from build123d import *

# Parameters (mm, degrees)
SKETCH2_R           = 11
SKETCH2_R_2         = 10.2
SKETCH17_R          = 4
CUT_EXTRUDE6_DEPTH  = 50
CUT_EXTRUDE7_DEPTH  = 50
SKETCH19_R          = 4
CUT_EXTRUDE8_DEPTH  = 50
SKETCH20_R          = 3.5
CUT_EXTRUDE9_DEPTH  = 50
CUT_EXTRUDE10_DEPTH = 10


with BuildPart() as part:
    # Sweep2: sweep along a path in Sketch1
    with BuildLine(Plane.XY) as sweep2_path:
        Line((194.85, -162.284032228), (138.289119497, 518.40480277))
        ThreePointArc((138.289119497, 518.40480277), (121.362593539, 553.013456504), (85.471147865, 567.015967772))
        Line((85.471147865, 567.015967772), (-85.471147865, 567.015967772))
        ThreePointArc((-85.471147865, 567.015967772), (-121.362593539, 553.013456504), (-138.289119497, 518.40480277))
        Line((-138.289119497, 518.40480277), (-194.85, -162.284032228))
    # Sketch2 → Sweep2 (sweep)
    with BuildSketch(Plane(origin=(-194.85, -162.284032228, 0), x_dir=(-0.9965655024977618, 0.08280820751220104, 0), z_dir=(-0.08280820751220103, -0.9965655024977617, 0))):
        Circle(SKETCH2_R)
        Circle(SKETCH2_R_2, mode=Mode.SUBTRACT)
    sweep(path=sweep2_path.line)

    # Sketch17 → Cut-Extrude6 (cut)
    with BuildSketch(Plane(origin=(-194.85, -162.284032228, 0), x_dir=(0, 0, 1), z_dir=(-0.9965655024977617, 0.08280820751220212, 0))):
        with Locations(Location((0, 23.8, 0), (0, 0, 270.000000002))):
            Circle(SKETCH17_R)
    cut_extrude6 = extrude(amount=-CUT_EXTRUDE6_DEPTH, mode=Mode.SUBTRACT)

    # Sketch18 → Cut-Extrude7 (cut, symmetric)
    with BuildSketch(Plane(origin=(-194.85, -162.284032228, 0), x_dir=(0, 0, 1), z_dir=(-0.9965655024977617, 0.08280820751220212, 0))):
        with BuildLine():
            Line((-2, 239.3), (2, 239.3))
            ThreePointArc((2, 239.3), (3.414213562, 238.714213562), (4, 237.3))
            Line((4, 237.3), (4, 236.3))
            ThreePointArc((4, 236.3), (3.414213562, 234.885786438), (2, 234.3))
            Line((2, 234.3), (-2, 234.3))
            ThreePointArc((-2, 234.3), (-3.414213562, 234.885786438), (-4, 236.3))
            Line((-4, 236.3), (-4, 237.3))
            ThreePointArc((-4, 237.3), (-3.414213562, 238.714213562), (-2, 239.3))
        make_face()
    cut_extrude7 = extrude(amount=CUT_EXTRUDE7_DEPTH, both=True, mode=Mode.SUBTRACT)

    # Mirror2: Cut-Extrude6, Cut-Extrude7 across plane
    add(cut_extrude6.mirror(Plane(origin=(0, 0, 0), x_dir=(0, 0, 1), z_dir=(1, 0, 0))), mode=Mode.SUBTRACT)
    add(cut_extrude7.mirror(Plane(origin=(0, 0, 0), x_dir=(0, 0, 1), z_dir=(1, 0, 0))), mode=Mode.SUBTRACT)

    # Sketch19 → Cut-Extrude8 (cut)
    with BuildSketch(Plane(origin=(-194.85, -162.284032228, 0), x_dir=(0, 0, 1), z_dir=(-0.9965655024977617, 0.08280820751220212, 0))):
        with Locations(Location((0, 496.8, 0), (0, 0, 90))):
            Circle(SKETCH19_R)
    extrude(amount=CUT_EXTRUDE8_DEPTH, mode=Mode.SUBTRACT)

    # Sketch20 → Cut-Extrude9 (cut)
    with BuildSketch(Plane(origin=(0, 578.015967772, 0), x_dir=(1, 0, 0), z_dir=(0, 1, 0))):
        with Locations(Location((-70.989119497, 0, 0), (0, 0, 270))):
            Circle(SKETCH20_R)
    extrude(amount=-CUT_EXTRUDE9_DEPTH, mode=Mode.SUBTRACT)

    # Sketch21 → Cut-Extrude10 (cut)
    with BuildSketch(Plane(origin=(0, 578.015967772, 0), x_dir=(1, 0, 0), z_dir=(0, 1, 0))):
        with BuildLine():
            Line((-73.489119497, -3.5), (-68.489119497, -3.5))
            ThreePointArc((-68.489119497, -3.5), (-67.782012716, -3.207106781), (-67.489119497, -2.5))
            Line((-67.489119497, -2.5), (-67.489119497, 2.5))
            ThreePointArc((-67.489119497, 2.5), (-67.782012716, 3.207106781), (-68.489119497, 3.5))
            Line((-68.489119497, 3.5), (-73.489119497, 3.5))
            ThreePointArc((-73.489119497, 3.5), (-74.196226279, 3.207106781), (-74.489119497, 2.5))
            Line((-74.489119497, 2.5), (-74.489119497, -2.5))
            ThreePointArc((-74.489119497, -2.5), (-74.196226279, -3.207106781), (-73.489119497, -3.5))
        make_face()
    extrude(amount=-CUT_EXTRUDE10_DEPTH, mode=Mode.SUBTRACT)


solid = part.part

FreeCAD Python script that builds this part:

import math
import FreeCAD as App
import Part
import Sketcher

V = App.Vector
Q = App.Units.Quantity

doc = App.newDocument("Part")
body = doc.addObject("PartDesign::Body", "Body")

# Sketch on an angled plane
sketch1 = body.newObject("Sketcher::SketchObject", "Sketch")
sketch1.Placement = App.Placement(V(-194.85, -162.284032, 0), App.Rotation(V(-0.996565502, 0.082808208, 0), V(0, 0, -0.999999999), V(-0.082808208, -0.996565502, 0), "ZXY"))
sketch1.addGeometry(Part.Circle(V(0, 0, 0), V(0, 0, 1), 11), False)
sketch1.addGeometry(Part.Circle(V(0, 0, 0), V(0, 0, 1), 10), False)
sketch1.addConstraint(Sketcher.Constraint("Coincident", 0, 3, -1, 1))
sketch1.addConstraint(Sketcher.Constraint("Coincident", 1, 3, -1, 1))
sketch1.addConstraint(Sketcher.Constraint("Diameter", 0, 22.0))
sketch1.addConstraint(Sketcher.Constraint("Diameter", 1, 20.4))

# Sketch on XY plane
sketch2 = body.newObject("Sketcher::SketchObject", "Sketch001")
sketch2.AttachmentSupport = (doc.getObject("XY_Plane"), [""])
sketch2.MapMode = "FlatFace"
sketch2.addGeometry(Part.LineSegment(V(195, -162, 0), V(138, 518, 0)), False)
sketch2.addGeometry(Part.ArcOfCircle(Part.Circle(V(85, 514, 0), V(0, 0, 1), 53), math.radians(5), math.radians(90)), False)
sketch2.addGeometry(Part.LineSegment(V(85, 567, 0), V(-85, 567, 0)), False)
sketch2.addGeometry(Part.ArcOfCircle(Part.Circle(V(-85, 514, 0), V(0, 0, 1), 53), math.radians(90), math.radians(175)), False)
sketch2.addGeometry(Part.LineSegment(V(-138, 518, 0), V(-195, -162, 0)), False)
sketch2.addConstraint(Sketcher.Constraint("Tangent", 0, 2, 1, 1))
sketch2.addConstraint(Sketcher.Constraint("Tangent", 1, 2, 2, 1))
sketch2.addConstraint(Sketcher.Constraint("Tangent", 2, 2, 3, 1))
sketch2.addConstraint(Sketcher.Constraint("Tangent", 3, 2, 4, 1))
sketch2.addConstraint(Sketcher.Constraint("Horizontal", 2))
sketch2.addConstraint(Sketcher.Constraint("Equal", 1, 3))
sketch2.addConstraint(Sketcher.Constraint("Symmetric", 0, 2, 3, 2, -2))
sketch2.addConstraint(Sketcher.Constraint("Horizontal", 0, 1, 4, 2))
sketch2.addConstraint(Sketcher.Constraint("Radius", 1, 53.0))
sketch2.addConstraint(Sketcher.Constraint("Angle", 0, Q("94.75 deg")))
sketch2.addConstraint(Sketcher.Constraint("DistanceY", 0, 1, 1, 3, 676.3))
sketch2.addConstraint(Sketcher.Constraint("DistanceX", 4, 2, 0, 1, 389.7))
sketch2.addConstraint(Sketcher.Constraint("DistanceY", -1, 1, 1, 3, 514.015968))
doc.recompute()

additivepipe = body.newObject("PartDesign::AdditivePipe", "AdditivePipe")
additivepipe.Profile = sketch1
additivepipe.Spine = (sketch2, ["Edge1", "Edge2", "Edge3", "Edge4", "Edge5"])

# Sketch on an angled plane
sketch3 = body.newObject("Sketcher::SketchObject", "Sketch002")
sketch3.Placement = App.Placement(V(-194.85, -162.284032, 0), App.Rotation(V(0, 0, 1), V(0.082808208, 0.996565502, 0), V(-0.996565502, 0.082808208, 0), "ZXY"))
sketch3.addGeometry(Part.Circle(V(0, 23.8, 0), V(0, 0, 1), 4), False)
sketch3.addConstraint(Sketcher.Constraint("PointOnObject", 0, 3, -2))
sketch3.addConstraint(Sketcher.Constraint("Diameter", 0, 8.0))
sketch3.addConstraint(Sketcher.Constraint("DistanceY", -1, 1, 0, 3, 23.8))
pocket1 = body.newObject("PartDesign::Pocket", "Pocket")
pocket1.Profile = sketch3
pocket1.Length = 50

# Sketch on an angled plane
sketch4 = body.newObject("Sketcher::SketchObject", "Sketch003")
sketch4.Placement = App.Placement(V(-194.85, -162.284032, 0), App.Rotation(V(0, 0, 1), V(0.082808208, 0.996565502, 0), V(-0.996565502, 0.082808208, 0), "ZXY"))
sketch4.addGeometry(Part.LineSegment(V(2, 239.3, 0), V(-2, 239.3, 0)), False)
sketch4.addGeometry(Part.ArcOfCircle(Part.Circle(V(-2, 237.3, 0), V(0, 0, 1), 2), math.radians(90), math.radians(180)), False)
sketch4.addGeometry(Part.LineSegment(V(-4, 237.3, 0), V(-4, 236.3, 0)), False)
sketch4.addGeometry(Part.ArcOfCircle(Part.Circle(V(-2, 236.3, 0), V(0, 0, 1), 2), math.radians(-180), math.radians(-90)), False)
sketch4.addGeometry(Part.LineSegment(V(-2, 234.3, 0), V(2, 234.3, 0)), False)
sketch4.addGeometry(Part.ArcOfCircle(Part.Circle(V(2, 236.3, 0), V(0, 0, 1), 2), math.radians(-90), math.radians(0)), False)
sketch4.addGeometry(Part.LineSegment(V(4, 236.3, 0), V(4, 237.3, 0)), False)
sketch4.addGeometry(Part.ArcOfCircle(Part.Circle(V(2, 237.3, 0), V(0, 0, 1), 2), math.radians(0), math.radians(90)), False)
sketch4.addConstraint(Sketcher.Constraint("Tangent", 0, 2, 1, 1))
sketch4.addConstraint(Sketcher.Constraint("Tangent", 1, 2, 2, 1))
sketch4.addConstraint(Sketcher.Constraint("Tangent", 2, 2, 3, 1))
sketch4.addConstraint(Sketcher.Constraint("Tangent", 3, 2, 4, 1))
sketch4.addConstraint(Sketcher.Constraint("Tangent", 4, 2, 5, 1))
sketch4.addConstraint(Sketcher.Constraint("Tangent", 5, 2, 6, 1))
sketch4.addConstraint(Sketcher.Constraint("Tangent", 6, 2, 7, 1))
sketch4.addConstraint(Sketcher.Constraint("Tangent", 7, 2, 0, 1))
sketch4.addConstraint(Sketcher.Constraint("Horizontal", 0))
sketch4.addConstraint(Sketcher.Constraint("Vertical", 2))
sketch4.addConstraint(Sketcher.Constraint("Horizontal", 4))
sketch4.addConstraint(Sketcher.Constraint("Vertical", 6))
sketch4.addConstraint(Sketcher.Constraint("Equal", 1, 3))
sketch4.addConstraint(Sketcher.Constraint("Equal", 3, 5))
sketch4.addConstraint(Sketcher.Constraint("Equal", 5, 7))
sketch4.addConstraint(Sketcher.Constraint("Radius", 1, 2.0))
sketch4.addConstraint(Sketcher.Constraint("DistanceX", 0, 2, 0, 1, 4.0))
sketch4.addConstraint(Sketcher.Constraint("DistanceY", 2, 2, 2, 1, 1.0))
sketch4.addConstraint(Sketcher.Constraint("DistanceX", 1, 3, -1, 1, 2.0))
sketch4.addConstraint(Sketcher.Constraint("DistanceY", -1, 1, 1, 3, 237.3))
pocket2 = body.newObject("PartDesign::Pocket", "Pocket001")
pocket2.Profile = sketch4
pocket2.Length = 100
pocket2.Midplane = True
doc.recompute()

mirrored = body.newObject("PartDesign::Mirrored", "Mirrored")
mirrored.Originals = [pocket1, pocket2]
mirrored.MirrorPlane = (doc.getObject("YZ_Plane"), [""])
body.Tip = mirrored

# Sketch on an angled plane
sketch5 = body.newObject("Sketcher::SketchObject", "Sketch004")
sketch5.Placement = App.Placement(V(-194.85, -162.284032, 0), App.Rotation(V(0, 0, 1), V(0.082808208, 0.996565502, 0), V(-0.996565502, 0.082808208, 0), "ZXY"))
sketch5.addGeometry(Part.Circle(V(0, 496.8, 0), V(0, 0, 1), 4), False)
sketch5.addConstraint(Sketcher.Constraint("PointOnObject", 0, 3, -2))
sketch5.addConstraint(Sketcher.Constraint("Diameter", 0, 8.0))
sketch5.addConstraint(Sketcher.Constraint("DistanceY", -1, 1, 0, 3, 496.8))
pocket3 = body.newObject("PartDesign::Pocket", "Pocket002")
pocket3.Profile = sketch5
pocket3.Length = 50
pocket3.Reversed = True

# Sketch on XZ plane
sketch6 = body.newObject("Sketcher::SketchObject", "Sketch005")
sketch6.AttachmentSupport = (doc.getObject("XZ_Plane"), [""])
sketch6.MapMode = "FlatFace"
sketch6.AttachmentOffset = App.Placement(V(0, 0, -578.015968), App.Rotation())
sketch6.addGeometry(Part.Circle(V(-71, 0, 0), V(0, 0, 1), 3.5), False)
sketch6.addConstraint(Sketcher.Constraint("PointOnObject", 0, 3, -1))
sketch6.addConstraint(Sketcher.Constraint("Diameter", 0, 7.0))
sketch6.addConstraint(Sketcher.Constraint("DistanceX", 0, 3, -1, 1, 70.989119))
pocket4 = body.newObject("PartDesign::Pocket", "Pocket003")
pocket4.Profile = sketch6
pocket4.Length = 50
pocket4.Reversed = True

# Sketch on XZ plane
sketch7 = body.newObject("Sketcher::SketchObject", "Sketch006")
sketch7.AttachmentSupport = (doc.getObject("XZ_Plane"), [""])
sketch7.MapMode = "FlatFace"
sketch7.AttachmentOffset = App.Placement(V(0, 0, -578.015968), App.Rotation())
sketch7.addGeometry(Part.LineSegment(V(-73.5, 3.5, 0), V(-68.5, 3.5, 0)), False)
sketch7.addGeometry(Part.ArcOfCircle(Part.Circle(V(-68.5, 2.5, 0), V(0, 0, 1), 1), math.radians(0), math.radians(90)), False)
sketch7.addGeometry(Part.LineSegment(V(-67.5, 2.5, 0), V(-67.5, -2.5, 0)), False)
sketch7.addGeometry(Part.ArcOfCircle(Part.Circle(V(-68.5, -2.5, 0), V(0, 0, 1), 1), math.radians(-90), math.radians(0)), False)
sketch7.addGeometry(Part.LineSegment(V(-68.5, -3.5, 0), V(-73.5, -3.5, 0)), False)
sketch7.addGeometry(Part.ArcOfCircle(Part.Circle(V(-73.5, -2.5, 0), V(0, 0, 1), 1), math.radians(180), math.radians(270)), False)
sketch7.addGeometry(Part.LineSegment(V(-74.5, -2.5, 0), V(-74.5, 2.5, 0)), False)
sketch7.addGeometry(Part.ArcOfCircle(Part.Circle(V(-73.5, 2.5, 0), V(0, 0, 1), 1), math.radians(90), math.radians(180)), False)
sketch7.addConstraint(Sketcher.Constraint("Tangent", 0, 2, 1, 2))
sketch7.addConstraint(Sketcher.Constraint("Tangent", 1, 1, 2, 1))
sketch7.addConstraint(Sketcher.Constraint("Tangent", 2, 2, 3, 2))
sketch7.addConstraint(Sketcher.Constraint("Tangent", 3, 1, 4, 1))
sketch7.addConstraint(Sketcher.Constraint("Tangent", 4, 2, 5, 2))
sketch7.addConstraint(Sketcher.Constraint("Tangent", 5, 1, 6, 1))
sketch7.addConstraint(Sketcher.Constraint("Tangent", 6, 2, 7, 2))
sketch7.addConstraint(Sketcher.Constraint("Tangent", 7, 1, 0, 1))
sketch7.addConstraint(Sketcher.Constraint("Horizontal", 0))
sketch7.addConstraint(Sketcher.Constraint("Vertical", 2))
sketch7.addConstraint(Sketcher.Constraint("Horizontal", 4))
sketch7.addConstraint(Sketcher.Constraint("Vertical", 6))
sketch7.addConstraint(Sketcher.Constraint("Equal", 1, 3))
sketch7.addConstraint(Sketcher.Constraint("Equal", 3, 5))
sketch7.addConstraint(Sketcher.Constraint("Equal", 5, 7))
sketch7.addConstraint(Sketcher.Constraint("Equal", 4, 2))
sketch7.addConstraint(Sketcher.Constraint("Radius", 1, 1.0))
sketch7.addConstraint(Sketcher.Constraint("DistanceX", 0, 1, 0, 2, 5.0))
sketch7.addConstraint(Sketcher.Constraint("DistanceY", -1, 1, 1, 3, 2.5))
sketch7.addConstraint(Sketcher.Constraint("DistanceX", 1, 3, -1, 1, 68.489119))
pocket5 = body.newObject("PartDesign::Pocket", "Pocket004")
pocket5.Profile = sketch7
pocket5.Length = 10
pocket5.Reversed = True

doc.recompute()
